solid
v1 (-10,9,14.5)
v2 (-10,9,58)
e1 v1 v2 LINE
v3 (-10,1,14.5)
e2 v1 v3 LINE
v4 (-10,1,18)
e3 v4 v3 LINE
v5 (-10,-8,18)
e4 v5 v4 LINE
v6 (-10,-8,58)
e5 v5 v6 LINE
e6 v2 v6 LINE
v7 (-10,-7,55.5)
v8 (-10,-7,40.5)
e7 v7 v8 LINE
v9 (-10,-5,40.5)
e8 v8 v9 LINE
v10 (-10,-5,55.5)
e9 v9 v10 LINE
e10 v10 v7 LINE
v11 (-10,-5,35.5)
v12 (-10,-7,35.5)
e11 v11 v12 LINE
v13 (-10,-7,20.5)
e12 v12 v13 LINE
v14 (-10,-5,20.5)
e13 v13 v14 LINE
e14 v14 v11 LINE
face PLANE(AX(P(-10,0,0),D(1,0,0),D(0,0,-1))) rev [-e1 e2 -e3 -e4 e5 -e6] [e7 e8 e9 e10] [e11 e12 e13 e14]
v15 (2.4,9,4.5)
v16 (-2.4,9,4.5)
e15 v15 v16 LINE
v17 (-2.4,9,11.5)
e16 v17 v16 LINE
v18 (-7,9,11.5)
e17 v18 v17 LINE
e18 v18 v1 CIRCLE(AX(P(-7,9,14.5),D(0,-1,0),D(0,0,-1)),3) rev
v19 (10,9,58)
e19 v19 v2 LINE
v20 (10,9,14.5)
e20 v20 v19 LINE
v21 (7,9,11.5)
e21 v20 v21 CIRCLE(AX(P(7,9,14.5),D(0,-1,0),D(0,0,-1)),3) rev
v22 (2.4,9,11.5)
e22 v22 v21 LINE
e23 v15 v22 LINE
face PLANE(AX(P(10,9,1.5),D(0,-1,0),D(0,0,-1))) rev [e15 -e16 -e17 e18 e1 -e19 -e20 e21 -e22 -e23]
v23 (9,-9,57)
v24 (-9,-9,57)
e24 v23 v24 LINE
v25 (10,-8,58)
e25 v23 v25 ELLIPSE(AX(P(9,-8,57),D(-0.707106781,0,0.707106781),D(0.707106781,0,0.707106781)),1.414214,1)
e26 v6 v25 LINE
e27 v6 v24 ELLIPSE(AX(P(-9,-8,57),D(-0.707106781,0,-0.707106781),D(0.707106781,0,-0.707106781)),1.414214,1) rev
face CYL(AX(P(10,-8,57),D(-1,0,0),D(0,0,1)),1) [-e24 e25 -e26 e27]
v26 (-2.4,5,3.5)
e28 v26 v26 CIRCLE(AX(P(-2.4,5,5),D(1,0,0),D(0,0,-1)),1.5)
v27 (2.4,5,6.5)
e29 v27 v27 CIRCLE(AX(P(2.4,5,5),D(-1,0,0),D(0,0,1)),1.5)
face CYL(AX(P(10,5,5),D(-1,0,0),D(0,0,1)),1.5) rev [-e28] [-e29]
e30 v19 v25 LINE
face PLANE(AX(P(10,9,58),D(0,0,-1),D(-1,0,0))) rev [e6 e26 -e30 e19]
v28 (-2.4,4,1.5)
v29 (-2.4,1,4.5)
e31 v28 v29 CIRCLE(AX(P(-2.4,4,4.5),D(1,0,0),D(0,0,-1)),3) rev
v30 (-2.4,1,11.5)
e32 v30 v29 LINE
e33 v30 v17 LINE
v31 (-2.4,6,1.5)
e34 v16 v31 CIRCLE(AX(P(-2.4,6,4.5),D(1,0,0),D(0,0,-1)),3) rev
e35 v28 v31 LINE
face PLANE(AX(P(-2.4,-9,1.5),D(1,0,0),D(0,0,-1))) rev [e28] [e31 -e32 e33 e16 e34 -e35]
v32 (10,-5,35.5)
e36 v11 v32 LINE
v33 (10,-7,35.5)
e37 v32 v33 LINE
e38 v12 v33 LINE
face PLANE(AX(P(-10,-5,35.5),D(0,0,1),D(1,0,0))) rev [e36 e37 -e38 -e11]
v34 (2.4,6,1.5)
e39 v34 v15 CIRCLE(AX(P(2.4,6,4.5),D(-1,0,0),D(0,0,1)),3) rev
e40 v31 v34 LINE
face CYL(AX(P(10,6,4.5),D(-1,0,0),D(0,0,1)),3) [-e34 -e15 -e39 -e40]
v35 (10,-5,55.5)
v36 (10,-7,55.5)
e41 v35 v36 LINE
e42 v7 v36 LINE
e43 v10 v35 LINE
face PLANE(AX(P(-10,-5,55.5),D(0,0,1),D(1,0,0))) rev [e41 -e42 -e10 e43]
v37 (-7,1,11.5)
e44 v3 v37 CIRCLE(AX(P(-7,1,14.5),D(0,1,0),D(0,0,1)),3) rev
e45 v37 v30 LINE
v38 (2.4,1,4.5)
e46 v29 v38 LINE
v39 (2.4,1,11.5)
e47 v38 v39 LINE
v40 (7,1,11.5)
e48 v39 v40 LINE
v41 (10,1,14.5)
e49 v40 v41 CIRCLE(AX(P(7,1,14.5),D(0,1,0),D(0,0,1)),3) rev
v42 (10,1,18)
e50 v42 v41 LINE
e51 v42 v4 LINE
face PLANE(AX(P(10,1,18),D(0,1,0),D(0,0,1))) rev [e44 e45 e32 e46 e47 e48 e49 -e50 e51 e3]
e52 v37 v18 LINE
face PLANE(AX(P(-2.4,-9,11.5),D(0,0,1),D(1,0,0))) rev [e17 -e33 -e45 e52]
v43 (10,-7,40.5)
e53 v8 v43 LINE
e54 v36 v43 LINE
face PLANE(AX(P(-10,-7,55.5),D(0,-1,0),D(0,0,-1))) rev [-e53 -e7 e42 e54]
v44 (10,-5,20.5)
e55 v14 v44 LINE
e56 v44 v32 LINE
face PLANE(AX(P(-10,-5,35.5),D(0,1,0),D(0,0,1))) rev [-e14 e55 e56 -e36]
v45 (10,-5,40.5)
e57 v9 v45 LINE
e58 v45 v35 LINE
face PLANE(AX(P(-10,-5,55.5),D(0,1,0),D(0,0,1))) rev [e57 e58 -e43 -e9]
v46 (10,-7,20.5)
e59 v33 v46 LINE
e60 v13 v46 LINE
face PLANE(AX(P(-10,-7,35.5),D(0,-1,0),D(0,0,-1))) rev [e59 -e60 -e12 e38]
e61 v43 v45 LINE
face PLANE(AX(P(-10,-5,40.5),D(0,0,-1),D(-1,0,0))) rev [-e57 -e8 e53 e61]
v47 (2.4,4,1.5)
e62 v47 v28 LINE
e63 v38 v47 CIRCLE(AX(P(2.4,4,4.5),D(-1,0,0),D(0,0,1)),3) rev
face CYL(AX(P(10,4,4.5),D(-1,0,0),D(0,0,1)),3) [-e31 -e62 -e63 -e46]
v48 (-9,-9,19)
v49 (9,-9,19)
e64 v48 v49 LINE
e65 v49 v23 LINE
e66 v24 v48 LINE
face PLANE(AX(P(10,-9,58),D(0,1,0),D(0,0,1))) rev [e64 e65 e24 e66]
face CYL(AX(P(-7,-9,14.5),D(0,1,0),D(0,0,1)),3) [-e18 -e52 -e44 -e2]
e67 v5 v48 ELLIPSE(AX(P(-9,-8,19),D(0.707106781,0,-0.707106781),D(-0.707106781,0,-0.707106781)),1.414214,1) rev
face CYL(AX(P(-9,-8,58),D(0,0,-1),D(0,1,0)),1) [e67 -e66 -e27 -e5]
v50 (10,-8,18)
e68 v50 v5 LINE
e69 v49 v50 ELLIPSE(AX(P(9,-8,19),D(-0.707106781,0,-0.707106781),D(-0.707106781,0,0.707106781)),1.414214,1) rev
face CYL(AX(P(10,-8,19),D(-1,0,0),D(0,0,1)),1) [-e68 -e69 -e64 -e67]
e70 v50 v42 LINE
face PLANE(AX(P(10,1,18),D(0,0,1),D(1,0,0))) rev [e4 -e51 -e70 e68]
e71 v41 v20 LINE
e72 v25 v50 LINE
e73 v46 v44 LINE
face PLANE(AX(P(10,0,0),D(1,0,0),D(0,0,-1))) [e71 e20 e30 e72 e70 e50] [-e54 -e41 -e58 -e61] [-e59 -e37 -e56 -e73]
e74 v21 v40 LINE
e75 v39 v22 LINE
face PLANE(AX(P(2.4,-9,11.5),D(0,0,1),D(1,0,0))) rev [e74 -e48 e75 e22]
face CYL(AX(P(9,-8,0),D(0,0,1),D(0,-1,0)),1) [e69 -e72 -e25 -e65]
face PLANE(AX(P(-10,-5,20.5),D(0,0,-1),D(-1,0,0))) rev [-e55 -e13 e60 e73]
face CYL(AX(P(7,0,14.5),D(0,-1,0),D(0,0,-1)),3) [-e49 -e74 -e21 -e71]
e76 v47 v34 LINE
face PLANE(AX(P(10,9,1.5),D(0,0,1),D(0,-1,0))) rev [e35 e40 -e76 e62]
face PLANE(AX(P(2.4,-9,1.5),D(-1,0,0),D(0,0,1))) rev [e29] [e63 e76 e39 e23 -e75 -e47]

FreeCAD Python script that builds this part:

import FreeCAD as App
import Part
import Sketcher
from FreeCAD import Vector
Q = App.Units.Quantity


def edges_at(feature, points):
    """Names of the edges that pass closest to the given points."""
    edges = feature.Shape.Edges
    near = lambda p: min(range(len(edges)), key=lambda i: edges[i].distToShape(Part.Vertex(*p))[0])
    return sorted({f"Edge{near(p) + 1}" for p in points})


def add_polygon(sketch, points):
    """Adds a closed chain of lines whose ends are joined by coincident constraints."""
    first, n = sketch.GeometryCount, len(points)
    for a, b in zip(points, points[1:] + points[:1]):
        sketch.addGeometry(Part.LineSegment(App.Vector(*a, 0), App.Vector(*b, 0)), False)
    for i in range(n):
        sketch.addConstraint(Sketcher.Constraint("Coincident", first + i, 2, first + (i + 1) % n, 1))

doc = App.newDocument("Part")
body = doc.addObject("PartDesign::Body", "Body")

# Sketch on YZ plane
sketch1 = body.newObject("Sketcher::SketchObject", "Sketch")
sketch1.AttachmentSupport = (doc.getObject("YZ_Plane"), [""])
sketch1.MapMode = "FlatFace"
add_polygon(sketch1, [(9, 1.5), (9, 58), (-9, 58), (-9, 18), (1, 18), (1, 1.5)])  # lines 0-5
sketch1.addGeometry(Part.Circle(Vector(5, 5, 0), Vector(0, 0, 1), 1.5), False)  # 6
sketch1.addConstraint([
    Sketcher.Constraint("Vertical", 0),
    Sketcher.Constraint("Horizontal", 1),
    Sketcher.Constraint("Vertical", 2),
    Sketcher.Constraint("Horizontal", 3),
    Sketcher.Constraint("Vertical", 4),
    Sketcher.Constraint("Horizontal", 5),
    Sketcher.Constraint("Diameter", 6, Q("3 mm")),
    Sketcher.Constraint("DistanceX", 1, 2, 1, 1, Q("18 mm")),
    Sketcher.Constraint("DistanceX", 3, 1, 3, 2, Q("10 mm")),
    Sketcher.Constraint("DistanceY", 2, 2, 2, 1, Q("40 mm")),
    Sketcher.Constraint("DistanceY", 0, 1, 0, 2, Q("56.5 mm")),
    Sketcher.Constraint("DistanceX", -1, 1, 6, 3, Q("5 mm")),
    Sketcher.Constraint("DistanceY", -1, 1, 6, 3, Q("5 mm")),
    Sketcher.Constraint("DistanceX", -1, 1, 0, 2, Q("9 mm")),
    Sketcher.Constraint("DistanceY", -1, 1, 0, 2, Q("58 mm")),
])
pad1 = body.newObject("PartDesign::Pad", "Pad")
pad1.Profile = sketch1
pad1.Length = 20
pad1.Midplane = True

# Sketch on XZ plane
sketch2 = body.newObject("Sketcher::SketchObject", "Sketch001")
sketch2.AttachmentSupport = (doc.getObject("XZ_Plane"), [""])
sketch2.MapMode = "FlatFace"
add_polygon(sketch2, [(-10, 2), (-10, 12), (-2, 12), (-2, 2)])  # lines 0-3
add_polygon(sketch2, [(2, 2), (2, 12), (10, 12), (10, 2)])  # lines 4-7
sketch2.addConstraint([
    Sketcher.Constraint("Vertical", 0),
    Sketcher.Constraint("Horizontal", 1),
    Sketcher.Constraint("Vertical", 2),
    Sketcher.Constraint("Horizontal", 3),
    Sketcher.Constraint("Vertical", 4),
    Sketcher.Constraint("Horizontal", 5),
    Sketcher.Constraint("Vertical", 6),
    Sketcher.Constraint("Horizontal", 7),
    Sketcher.Constraint("Symmetric", 1, 2, 4, 2, -2),
    Sketcher.Constraint("Symmetric", 3, 2, 6, 2, -2),
    Sketcher.Constraint("DistanceY", 0, 1, 0, 2, Q("10 mm")),
    Sketcher.Constraint("DistanceX", 1, 1, 1, 2, Q("7.6 mm")),
    Sketcher.Constraint("DistanceX", 0, 2, -1, 1, Q("10 mm")),
    Sketcher.Constraint("DistanceY", -1, 1, 0, 2, Q("11.5 mm")),
])
pocket1 = body.newObject("PartDesign::Pocket", "Pocket")
pocket1.Profile = sketch2
pocket1.Type = "ThroughAll"
pocket1.Midplane = True

# Sketch on YZ plane
sketch3 = body.newObject("Sketcher::SketchObject", "Sketch002")
sketch3.AttachmentSupport = (doc.getObject("YZ_Plane"), [""])
sketch3.MapMode = "FlatFace"
add_polygon(sketch3, [(-5, 55.5), (-7, 55.5), (-7, 40.5), (-5, 40.5)])  # lines 0-3
add_polygon(sketch3, [(-5, 35.5), (-7, 35.5), (-7, 20.5), (-5, 20.5)])  # lines 4-7
sketch3.addConstraint([
    Sketcher.Constraint("Horizontal", 0),
    Sketcher.Constraint("Vertical", 1),
    Sketcher.Constraint("Horizontal", 2),
    Sketcher.Constraint("Vertical", 3),
    Sketcher.Constraint("Horizontal", 4),
    Sketcher.Constraint("Vertical", 5),
    Sketcher.Constraint("Horizontal", 6),
    Sketcher.Constraint("Vertical", 7),
    Sketcher.Constraint("Vertical", 1, 2, 4, 2),
    Sketcher.Constraint("Vertical", 3, 2, 6, 2),
    Sketcher.Constraint("Equal", 3, 5),
    Sketcher.Constraint("DistanceX", 0, 2, 0, 1, Q("2 mm")),
    Sketcher.Constraint("DistanceY", 1, 2, 1, 1, Q("15 mm")),
    Sketcher.Constraint("DistanceX", 0, 2, -1, 1, Q("7 mm")),
    Sketcher.Constraint("DistanceY", 4, 2, 1, 2, Q("5 mm")),
    Sketcher.Constraint("DistanceY", -1, 1, 0, 2, Q("55.5 mm")),
])
pocket2 = body.newObject("PartDesign::Pocket", "Pocket001")
pocket2.Profile = sketch3
pocket2.Type = "ThroughAll"
pocket2.Midplane = True
doc.recompute()

fillet = body.newObject("PartDesign::Fillet", "Fillet")
fillet.Base = (pocket2, edges_at(pocket2, [
    (0, -9, 18),
    (0, -9, 58),
    (-10, -9, 38),
    (10, -9, 38),
]))
fillet.Radius = 1
doc.recompute()

fillet2 = body.newObject("PartDesign::Fillet", "Fillet001")
fillet2.Base = (fillet, edges_at(fillet, [
    (0, 9, 1.5),
    (0, 1, 1.5),
    (-10, 5, 11.5),
    (10, 5, 11.5),
]))
fillet2.Radius = 3

doc.recompute()
